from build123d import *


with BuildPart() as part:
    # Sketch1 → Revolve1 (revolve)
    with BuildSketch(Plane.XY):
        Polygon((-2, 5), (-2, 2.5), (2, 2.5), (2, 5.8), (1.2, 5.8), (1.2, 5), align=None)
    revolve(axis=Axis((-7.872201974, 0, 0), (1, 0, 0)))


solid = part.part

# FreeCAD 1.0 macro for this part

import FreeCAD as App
import Part
import Sketcher
from FreeCAD import Vector
Q = App.Units.Quantity

doc = App.newDocument("Part")
body = doc.addObject("PartDesign::Body", "Body")

# Sketch on XY plane
sketch1 = body.newObject("Sketcher::SketchObject", "Sketch")
sketch1.AttachmentSupport = (doc.getObject("XY_Plane"), [""])
sketch1.MapMode = "FlatFace"
sketch1.addGeometry([
    Part.LineSegment(Vector(-2, 5, 0), Vector(-2, 2.5, 0)),  # 0
    Part.LineSegment(Vector(-2, 2.5, 0), Vector(2, 2.5, 0)),  # 1
    Part.LineSegment(Vector(2, 2.5, 0), Vector(2, 5.8, 0)),  # 2
    Part.LineSegment(Vector(2, 5.8, 0), Vector(1.2, 5.8, 0)),  # 3
    Part.LineSegment(Vector(1.2, 5.8, 0), Vector(1.2, 5, 0)),  # 4
    Part.LineSegment(Vector(1.2, 5, 0), Vector(-2, 5, 0)),  # 5
], False)
sketch1.addConstraint([
    Sketcher.Constraint("Coincident", 0, 2, 1, 1),
    Sketcher.Constraint("Coincident", 1, 2, 2, 1),
    Sketcher.Constraint("Coincident", 2, 2, 3, 1),
    Sketcher.Constraint("Coincident", 3, 2, 4, 1),
    Sketcher.Constraint("Coincident", 4, 2, 5, 1),
    Sketcher.Constraint("Coincident", 5, 2, 0, 1),
    Sketcher.Constraint("Vertical", 0),
    Sketcher.Constraint("Horizontal", 1),
    Sketcher.Constraint("Vertical", 2),
    Sketcher.Constraint("Horizontal", 3),
    Sketcher.Constraint("Vertical", 4),
    Sketcher.Constraint("Horizontal", 5),
    Sketcher.Constraint("Equal", 3, 4),
    Sketcher.Constraint("DistanceX", 1, 1, 1, 2, Q("4 mm")),
    Sketcher.Constraint("DistanceX", 3, 2, 3, 1, Q("0.8 mm")),
    Sketcher.Constraint("DistanceY", 0, 2, 0, 1, Q("2.5 mm")),
    Sketcher.Constraint("DistanceX", 0, 2, -1, 1, Q("2 mm")),
    Sketcher.Constraint("DistanceY", -1, 1, 4, 2, Q("5 mm")),
])
revolution = body.newObject("PartDesign::Revolution", "Revolution")
revolution.Profile = sketch1
revolution.ReferenceAxis = (sketch1, ["H_Axis"])
revolution.Angle = 360

doc.recompute()
